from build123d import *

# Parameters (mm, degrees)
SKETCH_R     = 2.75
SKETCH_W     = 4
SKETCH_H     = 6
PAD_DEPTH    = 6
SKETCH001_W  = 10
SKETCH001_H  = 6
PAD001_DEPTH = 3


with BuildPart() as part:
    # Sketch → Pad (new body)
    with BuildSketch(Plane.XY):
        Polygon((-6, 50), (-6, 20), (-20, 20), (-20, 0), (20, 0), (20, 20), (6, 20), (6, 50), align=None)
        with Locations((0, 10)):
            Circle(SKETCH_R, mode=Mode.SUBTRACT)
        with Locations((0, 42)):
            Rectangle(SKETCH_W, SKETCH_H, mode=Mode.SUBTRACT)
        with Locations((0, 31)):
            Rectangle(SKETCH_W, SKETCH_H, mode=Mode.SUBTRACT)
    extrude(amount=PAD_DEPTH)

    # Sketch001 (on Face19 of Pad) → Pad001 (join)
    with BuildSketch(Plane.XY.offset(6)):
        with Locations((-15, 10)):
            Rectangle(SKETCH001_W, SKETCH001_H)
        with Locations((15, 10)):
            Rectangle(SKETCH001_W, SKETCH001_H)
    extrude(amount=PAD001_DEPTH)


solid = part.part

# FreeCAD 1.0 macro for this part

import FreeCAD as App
import Part
import Sketcher

V = App.Vector

doc = App.newDocument("Part")
body = doc.addObject("PartDesign::Body", "Body")

# Sketch on XY plane
sketch1 = body.newObject("Sketcher::SketchObject", "Sketch")
sketch1.AttachmentSupport = (doc.getObject("XY_Plane"), [""])
sketch1.MapMode = "FlatFace"
sketch1.addGeometry([
    Part.LineSegment(V(-6, 50, 0), V(-6, 20, 0)),  # 0
    Part.LineSegment(V(-6, 20, 0), V(-20, 20, 0)),  # 1
    Part.LineSegment(V(-20, 20, 0), V(-20, 0, 0)),  # 2
    Part.LineSegment(V(-20, 0, 0), V(20, 0, 0)),  # 3
    Part.LineSegment(V(20, 0, 0), V(20, 20, 0)),  # 4
    Part.LineSegment(V(20, 20, 0), V(6, 20, 0)),  # 5
    Part.LineSegment(V(6, 20, 0), V(6, 50, 0)),  # 6
    Part.LineSegment(V(6, 50, 0), V(-6, 50, 0)),  # 7
    Part.Circle(V(0, 10, 0), V(0, 0, 1), 2.8),  # 8
    Part.LineSegment(V(2, 28, 0), V(-2, 28, 0)),  # 9
    Part.LineSegment(V(-2, 28, 0), V(-2, 34, 0)),  # 10
    Part.LineSegment(V(-2, 34, 0), V(2, 34, 0)),  # 11
    Part.LineSegment(V(2, 34, 0), V(2, 28, 0)),  # 12
    Part.LineSegment(V(2, 39, 0), V(-2, 39, 0)),  # 13
    Part.LineSegment(V(-2, 39, 0), V(-2, 45, 0)),  # 14
    Part.LineSegment(V(-2, 45, 0), V(2, 45, 0)),  # 15
    Part.LineSegment(V(2, 45, 0), V(2, 39, 0)),  # 16
], False)
sketch1.addConstraint([
    Sketcher.Constraint("Coincident", 0, 2, 1, 1),
    Sketcher.Constraint("Coincident", 1, 2, 2, 1),
    Sketcher.Constraint("Coincident", 2, 2, 3, 1),
    Sketcher.Constraint("Coincident", 3, 2, 4, 1),
    Sketcher.Constraint("Coincident", 4, 2, 5, 1),
    Sketcher.Constraint("Coincident", 5, 2, 6, 1),
    Sketcher.Constraint("Coincident", 6, 2, 7, 1),
    Sketcher.Constraint("Coincident", 7, 2, 0, 1),
    Sketcher.Constraint("Coincident", 9, 2, 10, 1),
    Sketcher.Constraint("Coincident", 10, 2, 11, 1),
    Sketcher.Constraint("Coincident", 11, 2, 12, 1),
    Sketcher.Constraint("Coincident", 12, 2, 9, 1),
    Sketcher.Constraint("Coincident", 13, 2, 14, 1),
    Sketcher.Constraint("Coincident", 14, 2, 15, 1),
    Sketcher.Constraint("Coincident", 15, 2, 16, 1),
    Sketcher.Constraint("Coincident", 16, 2, 13, 1),
    Sketcher.Constraint("Vertical", 0),
    Sketcher.Constraint("Horizontal", 1),
    Sketcher.Constraint("Vertical", 2),
    Sketcher.Constraint("Horizontal", 3),
    Sketcher.Constraint("Vertical", 4),
    Sketcher.Constraint("Horizontal", 5),
    Sketcher.Constraint("Vertical", 6),
    Sketcher.Constraint("Horizontal", 7),
    Sketcher.Constraint("Horizontal", 9),
    Sketcher.Constraint("Vertical", 10),
    Sketcher.Constraint("Horizontal", 11),
    Sketcher.Constraint("Vertical", 12),
    Sketcher.Constraint("Horizontal", 13),
    Sketcher.Constraint("Vertical", 14),
    Sketcher.Constraint("Horizontal", 15),
    Sketcher.Constraint("Vertical", 16),
    Sketcher.Constraint("Symmetric", 2, 2, 3, 2, -1, 1),
    Sketcher.Constraint("Symmetric", 0, 2, 5, 2, -2),
    Sketcher.Constraint("PointOnObject", 8, 3, -2),
    Sketcher.Constraint("Vertical", 10, 2, 13, 2),
    Sketcher.Constraint("Vertical", 12, 2, 15, 2),
    Sketcher.Constraint("Equal", 12, 14),
    Sketcher.Constraint("Diameter", 8, 5.5),
    Sketcher.Constraint("DistanceX", 1, 2, 1, 1, 14.0),
    Sketcher.Constraint("DistanceX", 3, 1, 3, 2, 40.0),
    Sketcher.Constraint("DistanceX", 9, 2, 9, 1, 4.0),
    Sketcher.Constraint("DistanceY", 0, 2, 0, 1, 30.0),
    Sketcher.Constraint("DistanceY", 2, 2, 2, 1, 20.0),
    Sketcher.Constraint("DistanceY", 10, 1, 10, 2, 6.0),
    Sketcher.Constraint("DistanceY", -1, 1, 8, 3, 10.0),
    Sketcher.Constraint("DistanceX", 9, 2, -1, 1, 2.0),
    Sketcher.Constraint("DistanceY", -1, 1, 9, 2, 28.0),
    Sketcher.Constraint("DistanceY", -1, 1, 13, 2, 39.0),
])
pad1 = body.newObject("PartDesign::Pad", "Pad")
pad1.Profile = sketch1
pad1.Length = 6

# Sketch on XY plane
sketch2 = body.newObject("Sketcher::SketchObject", "Sketch001")
sketch2.AttachmentSupport = (doc.getObject("XY_Plane"), [""])
sketch2.MapMode = "FlatFace"
sketch2.AttachmentOffset = App.Placement(V(0, 0, 6), App.Rotation())
sketch2.addGeometry([
    Part.LineSegment(V(-20, 13, 0), V(-20, 7, 0)),  # 0
    Part.LineSegment(V(-20, 7, 0), V(-10, 7, 0)),  # 1
    Part.LineSegment(V(-10, 7, 0), V(-10, 13, 0)),  # 2
    Part.LineSegment(V(-10, 13, 0), V(-20, 13, 0)),  # 3
    Part.LineSegment(V(10, 13, 0), V(10, 7, 0)),  # 4
    Part.LineSegment(V(10, 7, 0), V(20, 7, 0)),  # 5
    Part.LineSegment(V(20, 7, 0), V(20, 13, 0)),  # 6
    Part.LineSegment(V(20, 13, 0), V(10, 13, 0)),  # 7
], False)
sketch2.addConstraint([
    Sketcher.Constraint("Coincident", 0, 2, 1, 1),
    Sketcher.Constraint("Coincident", 1, 2, 2, 1),
    Sketcher.Constraint("Coincident", 2, 2, 3, 1),
    Sketcher.Constraint("Coincident", 3, 2, 0, 1),
    Sketcher.Constraint("Coincident", 4, 2, 5, 1),
    Sketcher.Constraint("Coincident", 5, 2, 6, 1),
    Sketcher.Constraint("Coincident", 6, 2, 7, 1),
    Sketcher.Constraint("Coincident", 7, 2, 4, 1),
    Sketcher.Constraint("Vertical", 0),
    Sketcher.Constraint("Horizontal", 1),
    Sketcher.Constraint("Vertical", 2),
    Sketcher.Constraint("Horizontal", 3),
    Sketcher.Constraint("Vertical", 4),
    Sketcher.Constraint("Horizontal", 5),
    Sketcher.Constraint("Vertical", 6),
    Sketcher.Constraint("Horizontal", 7),
    Sketcher.Constraint("Symmetric", 1, 2, 4, 2, -2),
    Sketcher.Constraint("Symmetric", 3, 2, 6, 2, -2),
    Sketcher.Constraint("DistanceX", 1, 1, 1, 2, 10.0),
    Sketcher.Constraint("DistanceY", 0, 2, 0, 1, 6.0),
    Sketcher.Constraint("DistanceX", 0, 2, -1, 1, 20.0),
    Sketcher.Constraint("DistanceY", -1, 1, 0, 2, 7.0),
])
pad2 = body.newObject("PartDesign::Pad", "Pad001")
pad2.Profile = sketch2
pad2.Length = 3

doc.recompute()
